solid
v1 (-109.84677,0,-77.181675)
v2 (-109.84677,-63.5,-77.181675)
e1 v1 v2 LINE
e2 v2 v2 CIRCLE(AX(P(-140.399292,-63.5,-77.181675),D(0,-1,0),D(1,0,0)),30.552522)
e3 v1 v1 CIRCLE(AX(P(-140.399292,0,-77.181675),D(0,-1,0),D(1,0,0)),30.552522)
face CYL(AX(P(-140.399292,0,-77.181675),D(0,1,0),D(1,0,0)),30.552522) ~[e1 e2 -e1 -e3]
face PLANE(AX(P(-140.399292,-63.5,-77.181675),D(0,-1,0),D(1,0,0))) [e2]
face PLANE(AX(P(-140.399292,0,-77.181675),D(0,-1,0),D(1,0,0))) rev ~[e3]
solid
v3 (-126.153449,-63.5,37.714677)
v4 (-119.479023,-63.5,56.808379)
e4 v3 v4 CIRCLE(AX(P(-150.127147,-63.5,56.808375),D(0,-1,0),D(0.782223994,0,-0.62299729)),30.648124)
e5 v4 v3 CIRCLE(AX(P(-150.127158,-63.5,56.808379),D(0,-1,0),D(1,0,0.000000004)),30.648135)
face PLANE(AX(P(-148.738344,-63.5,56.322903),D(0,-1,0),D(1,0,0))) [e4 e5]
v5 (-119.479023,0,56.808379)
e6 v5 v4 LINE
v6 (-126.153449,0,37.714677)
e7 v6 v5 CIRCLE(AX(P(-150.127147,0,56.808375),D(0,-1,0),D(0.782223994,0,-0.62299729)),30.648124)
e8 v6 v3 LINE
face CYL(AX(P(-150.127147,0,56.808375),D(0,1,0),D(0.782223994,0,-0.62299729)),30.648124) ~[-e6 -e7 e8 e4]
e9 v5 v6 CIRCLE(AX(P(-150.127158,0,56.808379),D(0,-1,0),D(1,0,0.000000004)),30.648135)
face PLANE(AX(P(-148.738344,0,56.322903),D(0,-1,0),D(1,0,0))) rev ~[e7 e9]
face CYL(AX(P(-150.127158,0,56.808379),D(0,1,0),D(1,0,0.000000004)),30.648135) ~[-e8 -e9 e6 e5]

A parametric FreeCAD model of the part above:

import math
import FreeCAD as App
import Part
import Sketcher
from FreeCAD import Vector
Q = App.Units.Quantity

doc = App.newDocument("Part")
body = doc.addObject("PartDesign::Body", "Body")
body.AllowCompound = True

# Sketch on XZ plane
sketch1 = doc.addObject("Sketcher::SketchObject", "Sketch")
body.addObject(sketch1)
sketch1.AttachmentSupport = (doc.XZ_Plane, [""])
sketch1.MapMode = "FlatFace"
sketch1.addGeometry([
    Part.ArcOfCircle(Part.Circle(Vector(-150.127147, 56.808375, 0), Vector(0, 0, 1), 30.648124), math.radians(-38.535344), math.radians(0.000007)),
    Part.ArcOfCircle(Part.Circle(Vector(-150.127158, 56.808379, 0), Vector(0, 0, 1), 30.648135), math.radians(0), math.radians(321.464663)),
    Part.Circle(Vector(-140.399292, -77.181675, 0), Vector(0, 0, 1), 30.552522),
], False)
sketch1.addConstraint([
    Sketcher.Constraint("Tangent", 0, 1, 1, 2),
    Sketcher.Constraint("Coincident", 1, 1, 0, 2),
    Sketcher.Constraint("Diameter", 2, Q("61.105044 mm")),
    Sketcher.Constraint("Radius", 0, Q("30.648124 mm")),
    Sketcher.Constraint("DistanceY", 0, 1, 0, 3, Q("19.093698 mm")),
    Sketcher.Constraint("DistanceY", -1, 1, 1, 3, Q("56.808379 mm")),
    Sketcher.Constraint("DistanceX", 2, 3, -1, 1, Q("140.399292 mm")),
    Sketcher.Constraint("DistanceX", 0, 1, -1, 1, Q("126.153449 mm")),
    Sketcher.Constraint("DistanceY", -1, 1, 1, 1, Q("56.808379 mm")),
    Sketcher.Constraint("DistanceY", 2, 3, 0, 3, Q("133.99005 mm")),
])
pad1 = doc.addObject("PartDesign::Pad", "Pad")
body.addObject(pad1)
pad1.Profile = sketch1
pad1.Length = Q("2.5 in")

doc.recompute()
